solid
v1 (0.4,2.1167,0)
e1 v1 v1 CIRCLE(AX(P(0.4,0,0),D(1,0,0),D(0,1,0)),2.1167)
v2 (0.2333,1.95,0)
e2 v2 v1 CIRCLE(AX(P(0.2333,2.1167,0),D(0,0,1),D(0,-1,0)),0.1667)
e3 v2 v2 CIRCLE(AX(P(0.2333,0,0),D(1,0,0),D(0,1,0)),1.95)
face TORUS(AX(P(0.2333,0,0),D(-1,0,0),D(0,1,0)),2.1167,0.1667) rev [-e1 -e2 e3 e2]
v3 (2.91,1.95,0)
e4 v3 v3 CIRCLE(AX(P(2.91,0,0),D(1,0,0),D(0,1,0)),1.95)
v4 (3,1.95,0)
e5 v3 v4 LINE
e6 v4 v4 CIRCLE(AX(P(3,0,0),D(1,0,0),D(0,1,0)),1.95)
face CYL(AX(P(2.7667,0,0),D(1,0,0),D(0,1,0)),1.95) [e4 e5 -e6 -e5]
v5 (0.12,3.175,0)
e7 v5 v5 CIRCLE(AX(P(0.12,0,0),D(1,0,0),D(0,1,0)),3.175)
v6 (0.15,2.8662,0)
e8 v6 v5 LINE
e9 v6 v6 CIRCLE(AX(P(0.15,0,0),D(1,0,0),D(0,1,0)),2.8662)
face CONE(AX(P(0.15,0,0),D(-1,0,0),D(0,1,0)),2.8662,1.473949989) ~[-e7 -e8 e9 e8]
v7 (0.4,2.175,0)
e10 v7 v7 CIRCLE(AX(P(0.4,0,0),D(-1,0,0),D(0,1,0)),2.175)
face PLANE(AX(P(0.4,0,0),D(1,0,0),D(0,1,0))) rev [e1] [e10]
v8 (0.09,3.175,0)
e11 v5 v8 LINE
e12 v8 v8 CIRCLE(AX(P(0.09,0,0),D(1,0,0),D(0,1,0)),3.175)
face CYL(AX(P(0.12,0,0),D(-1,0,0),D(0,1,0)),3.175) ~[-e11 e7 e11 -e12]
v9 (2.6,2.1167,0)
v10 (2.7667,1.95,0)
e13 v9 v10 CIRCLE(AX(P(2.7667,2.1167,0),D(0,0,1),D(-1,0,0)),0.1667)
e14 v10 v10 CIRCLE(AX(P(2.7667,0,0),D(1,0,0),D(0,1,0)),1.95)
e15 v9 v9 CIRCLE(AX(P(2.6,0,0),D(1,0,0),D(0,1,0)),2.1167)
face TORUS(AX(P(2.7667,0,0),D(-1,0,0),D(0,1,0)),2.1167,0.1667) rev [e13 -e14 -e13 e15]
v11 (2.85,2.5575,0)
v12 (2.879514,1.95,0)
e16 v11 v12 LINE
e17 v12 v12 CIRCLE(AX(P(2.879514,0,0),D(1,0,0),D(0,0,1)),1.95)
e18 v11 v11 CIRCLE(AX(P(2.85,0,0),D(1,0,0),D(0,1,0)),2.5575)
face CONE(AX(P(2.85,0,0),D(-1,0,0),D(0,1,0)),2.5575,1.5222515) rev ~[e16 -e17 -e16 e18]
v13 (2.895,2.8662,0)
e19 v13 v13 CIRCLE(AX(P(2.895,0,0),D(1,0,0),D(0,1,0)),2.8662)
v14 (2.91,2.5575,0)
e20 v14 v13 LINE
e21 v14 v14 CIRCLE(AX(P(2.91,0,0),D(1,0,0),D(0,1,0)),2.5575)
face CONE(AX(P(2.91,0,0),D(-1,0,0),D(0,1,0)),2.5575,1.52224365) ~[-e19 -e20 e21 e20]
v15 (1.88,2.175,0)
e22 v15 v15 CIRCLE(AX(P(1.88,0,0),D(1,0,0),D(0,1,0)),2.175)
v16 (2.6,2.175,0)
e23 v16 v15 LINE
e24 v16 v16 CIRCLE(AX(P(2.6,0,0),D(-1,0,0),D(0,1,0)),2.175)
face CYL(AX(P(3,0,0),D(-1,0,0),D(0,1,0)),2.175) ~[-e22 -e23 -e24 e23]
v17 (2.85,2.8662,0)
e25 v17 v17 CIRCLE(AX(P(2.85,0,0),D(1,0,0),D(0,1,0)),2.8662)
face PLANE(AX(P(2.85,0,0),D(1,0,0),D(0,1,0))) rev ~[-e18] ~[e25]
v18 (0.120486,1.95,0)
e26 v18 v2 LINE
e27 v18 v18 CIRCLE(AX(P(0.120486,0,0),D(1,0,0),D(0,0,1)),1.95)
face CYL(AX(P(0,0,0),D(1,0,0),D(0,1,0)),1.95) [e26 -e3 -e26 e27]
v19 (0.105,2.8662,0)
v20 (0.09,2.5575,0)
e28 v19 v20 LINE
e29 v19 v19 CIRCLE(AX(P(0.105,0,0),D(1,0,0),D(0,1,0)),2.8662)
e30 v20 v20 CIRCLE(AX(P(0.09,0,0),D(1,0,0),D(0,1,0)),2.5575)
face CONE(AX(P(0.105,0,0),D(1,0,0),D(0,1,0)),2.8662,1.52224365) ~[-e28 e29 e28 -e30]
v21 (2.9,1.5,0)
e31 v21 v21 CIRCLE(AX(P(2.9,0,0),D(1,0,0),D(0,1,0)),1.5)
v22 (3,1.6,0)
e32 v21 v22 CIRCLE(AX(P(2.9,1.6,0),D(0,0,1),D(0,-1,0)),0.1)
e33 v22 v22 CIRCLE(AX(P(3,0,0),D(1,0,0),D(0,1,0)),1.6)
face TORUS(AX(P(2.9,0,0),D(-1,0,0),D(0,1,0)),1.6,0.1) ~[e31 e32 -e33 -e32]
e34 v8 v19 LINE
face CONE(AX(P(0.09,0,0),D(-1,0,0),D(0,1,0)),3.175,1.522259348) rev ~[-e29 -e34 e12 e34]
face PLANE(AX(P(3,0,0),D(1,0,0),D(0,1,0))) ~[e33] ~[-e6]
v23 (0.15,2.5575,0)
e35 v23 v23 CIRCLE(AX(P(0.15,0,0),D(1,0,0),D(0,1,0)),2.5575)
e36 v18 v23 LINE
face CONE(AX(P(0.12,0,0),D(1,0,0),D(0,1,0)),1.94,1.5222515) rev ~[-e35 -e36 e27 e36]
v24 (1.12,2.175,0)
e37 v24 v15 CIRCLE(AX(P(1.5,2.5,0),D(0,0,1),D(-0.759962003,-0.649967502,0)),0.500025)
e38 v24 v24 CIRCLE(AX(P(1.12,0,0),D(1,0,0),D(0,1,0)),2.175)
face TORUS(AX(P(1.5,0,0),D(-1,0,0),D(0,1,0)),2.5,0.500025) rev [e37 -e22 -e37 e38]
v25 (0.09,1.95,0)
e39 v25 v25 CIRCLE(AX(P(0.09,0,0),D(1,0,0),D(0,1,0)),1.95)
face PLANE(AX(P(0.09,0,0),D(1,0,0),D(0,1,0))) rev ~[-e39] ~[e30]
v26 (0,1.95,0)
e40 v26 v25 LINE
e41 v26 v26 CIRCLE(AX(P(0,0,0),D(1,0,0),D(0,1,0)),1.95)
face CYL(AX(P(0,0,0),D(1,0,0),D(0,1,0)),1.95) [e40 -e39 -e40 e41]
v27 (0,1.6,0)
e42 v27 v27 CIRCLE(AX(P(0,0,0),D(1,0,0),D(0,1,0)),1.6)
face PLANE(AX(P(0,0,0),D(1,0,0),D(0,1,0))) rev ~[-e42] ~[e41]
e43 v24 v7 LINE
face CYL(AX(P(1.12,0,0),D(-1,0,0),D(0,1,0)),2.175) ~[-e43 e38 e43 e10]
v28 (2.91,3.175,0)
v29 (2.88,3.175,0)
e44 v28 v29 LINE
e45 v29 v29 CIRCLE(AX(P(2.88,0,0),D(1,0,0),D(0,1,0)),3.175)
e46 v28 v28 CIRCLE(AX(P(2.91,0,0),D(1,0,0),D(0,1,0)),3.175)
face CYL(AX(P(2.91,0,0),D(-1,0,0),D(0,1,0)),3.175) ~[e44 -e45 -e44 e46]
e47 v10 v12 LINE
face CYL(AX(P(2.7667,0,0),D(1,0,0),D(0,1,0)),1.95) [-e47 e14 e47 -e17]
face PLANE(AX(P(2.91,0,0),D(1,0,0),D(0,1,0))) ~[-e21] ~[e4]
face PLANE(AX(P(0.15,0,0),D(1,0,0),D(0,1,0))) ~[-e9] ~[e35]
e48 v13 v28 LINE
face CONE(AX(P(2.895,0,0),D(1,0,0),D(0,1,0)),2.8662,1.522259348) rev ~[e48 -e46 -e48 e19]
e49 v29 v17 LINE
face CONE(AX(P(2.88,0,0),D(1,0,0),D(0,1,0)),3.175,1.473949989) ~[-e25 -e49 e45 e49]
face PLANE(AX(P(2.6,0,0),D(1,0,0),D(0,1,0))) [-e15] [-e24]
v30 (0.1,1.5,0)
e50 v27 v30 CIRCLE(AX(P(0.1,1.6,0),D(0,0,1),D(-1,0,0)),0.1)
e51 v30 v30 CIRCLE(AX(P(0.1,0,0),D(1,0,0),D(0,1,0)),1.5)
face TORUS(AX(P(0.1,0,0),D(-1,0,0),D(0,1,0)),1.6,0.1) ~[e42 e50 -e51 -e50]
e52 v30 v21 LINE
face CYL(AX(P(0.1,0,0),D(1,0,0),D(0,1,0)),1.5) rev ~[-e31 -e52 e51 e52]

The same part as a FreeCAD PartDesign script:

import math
import FreeCAD as App
import Part
import Sketcher

V = App.Vector
Q = App.Units.Quantity


def add_polygon(sketch, points):
    """Adds a closed chain of lines whose ends are joined by coincident constraints."""
    first, n = sketch.GeometryCount, len(points)
    for a, b in zip(points, points[1:] + points[:1]):
        sketch.addGeometry(Part.LineSegment(App.Vector(*a, 0), App.Vector(*b, 0)), False)
    for i in range(n):
        sketch.addConstraint(Sketcher.Constraint("Coincident", first + i, 2, first + (i + 1) % n, 1))

doc = App.newDocument("Part")
body = doc.addObject("PartDesign::Body", "Body")

# Sketch on XY plane
sketch1 = doc.addObject("Sketcher::SketchObject", "Sketch")
body.addObject(sketch1)
sketch1.AttachmentSupport = (doc.XY_Plane, [""])
sketch1.MapMode = "FlatFace"
sketch1.addGeometry([
    Part.LineSegment(V(0, 2.17, 0), V(0, 1.6, 0)),  # 0
    Part.ArcOfCircle(Part.Circle(V(0.1, 1.6, 0), V(0, 0, 1), 0.1), math.radians(180), math.radians(270)),  # 1
    Part.LineSegment(V(0.1, 1.5, 0), V(2.9, 1.5, 0)),  # 2
    Part.ArcOfCircle(Part.Circle(V(2.9, 1.6, 0), V(0, 0, 1), 0.1), math.radians(-90), math.radians(0)),  # 3
    Part.LineSegment(V(3, 1.6, 0), V(3, 2.17, 0)),  # 4
    Part.LineSegment(V(3, 2.17, 0), V(1.88, 2.17, 0)),  # 5
    Part.ArcOfCircle(Part.Circle(V(1.5, 2.5, 0), V(0, 0, 1), 0.5), math.radians(-139), math.radians(-41)),  # 6
    Part.LineSegment(V(1.12, 2.17, 0), V(0, 2.17, 0)),  # 7
], False)
sketch1.addConstraint([
    Sketcher.Constraint("Tangent", 0, 2, 1, 1),
    Sketcher.Constraint("Tangent", 1, 2, 2, 1),
    Sketcher.Constraint("Tangent", 2, 2, 3, 1),
    Sketcher.Constraint("Tangent", 3, 2, 4, 1),
    Sketcher.Constraint("Coincident", 4, 2, 5, 1),
    Sketcher.Constraint("Coincident", 5, 2, 6, 2),
    Sketcher.Constraint("Coincident", 6, 1, 7, 1),
    Sketcher.Constraint("Coincident", 7, 2, 0, 1),
    Sketcher.Constraint("Vertical", 0),
    Sketcher.Constraint("Horizontal", 2),
    Sketcher.Constraint("Vertical", 4),
    Sketcher.Constraint("Horizontal", 5),
    Sketcher.Constraint("Horizontal", 7),
    Sketcher.Constraint("Equal", 1, 3),
    Sketcher.Constraint("PointOnObject", 0, 2, -2),
    Sketcher.Constraint("Horizontal", 5, 2, 6, 1),
    Sketcher.Constraint("Equal", 5, 7),
    Sketcher.Constraint("Radius", 1, 0.1),
    Sketcher.Constraint("Radius", 6, 0.5),
    Sketcher.Constraint("DistanceX", 2, 1, 2, 2, 2.8),
    Sketcher.Constraint("DistanceY", 1, 2, 6, 3, 1.0),
    Sketcher.Constraint("DistanceX", 5, 2, 5, 1, 1.12),
    Sketcher.Constraint("DistanceY", -1, 1, 1, 3, 1.6),
])
revolution = doc.addObject("PartDesign::Revolution", "Revolution")
body.addObject(revolution)
revolution.Profile = sketch1
revolution.ReferenceAxis = (sketch1, ["H_Axis"])
revolution.Angle = 360

# Sketch on XY plane
sketch2 = doc.addObject("Sketcher::SketchObject", "Sketch001")
body.addObject(sketch2)
sketch2.AttachmentSupport = (doc.XY_Plane, [""])
sketch2.MapMode = "FlatFace"
sketch2.addGeometry([
    Part.LineSegment(V(3, 2.58, 0), V(0, 2.58, 0)),  # 0
    Part.LineSegment(V(0, 2.58, 0), V(0, 1.95, 0)),  # 1
    Part.LineSegment(V(0, 1.95, 0), V(0.23, 1.95, 0)),  # 2
    Part.ArcOfCircle(Part.Circle(V(0.23, 2.12, 0), V(0, 0, 1), 0.17), math.radians(-90), math.radians(0)),  # 3
    Part.LineSegment(V(0.4, 2.12, 0), V(0.4, 2.31, 0)),  # 4
    Part.LineSegment(V(0.4, 2.31, 0), V(2.6, 2.31, 0)),  # 5
    Part.LineSegment(V(2.6, 2.31, 0), V(2.6, 2.12, 0)),  # 6
    Part.ArcOfCircle(Part.Circle(V(2.77, 2.12, 0), V(0, 0, 1), 0.17), math.radians(180), math.radians(270)),  # 7
    Part.LineSegment(V(2.77, 1.95, 0), V(3, 1.95, 0)),  # 8
    Part.LineSegment(V(3, 1.95, 0), V(3, 2.58, 0)),  # 9
], False)
sketch2.addConstraint([
    Sketcher.Constraint("Coincident", 0, 2, 1, 1),
    Sketcher.Constraint("Coincident", 1, 2, 2, 1),
    Sketcher.Constraint("Tangent", 2, 2, 3, 1),
    Sketcher.Constraint("Tangent", 3, 2, 4, 1),
    Sketcher.Constraint("Coincident", 4, 2, 5, 1),
    Sketcher.Constraint("Coincident", 5, 2, 6, 1),
    Sketcher.Constraint("Tangent", 6, 2, 7, 1),
    Sketcher.Constraint("Tangent", 7, 2, 8, 1),
    Sketcher.Constraint("Coincident", 8, 2, 9, 1),
    Sketcher.Constraint("Coincident", 9, 2, 0, 1),
    Sketcher.Constraint("Horizontal", 0),
    Sketcher.Constraint("Vertical", 1),
    Sketcher.Constraint("Horizontal", 2),
    Sketcher.Constraint("Vertical", 4),
    Sketcher.Constraint("Horizontal", 5),
    Sketcher.Constraint("Vertical", 6),
    Sketcher.Constraint("Horizontal", 8),
    Sketcher.Constraint("Vertical", 9),
    Sketcher.Constraint("Equal", 3, 7),
    Sketcher.Constraint("PointOnObject", 0, 2, -2),
    Sketcher.Constraint("Horizontal", 3, 3, 7, 3),
    Sketcher.Constraint("Equal", 2, 8),
    Sketcher.Constraint("DistanceX", 0, 2, 0, 1, 3.0),
    Sketcher.Constraint("DistanceX", 5, 1, 5, 2, 2.2),
    Sketcher.Constraint("Radius", 3, 0.1667),
    Sketcher.Constraint("DistanceY", 1, 2, 1, 1, 0.625),
    Sketcher.Constraint("DistanceY", -1, 1, 1, 2, 1.95),
    Sketcher.Constraint("DistanceY", 4, 1, 4, 2, 0.1916),
])
groove = doc.addObject("PartDesign::Groove", "Groove")
body.addObject(groove)
groove.Profile = sketch2
groove.ReferenceAxis = (sketch2, ["H_Axis"])
groove.Angle = 360

# Sketch on XY plane
sketch3 = doc.addObject("Sketcher::SketchObject", "Sketch002")
body.addObject(sketch3)
sketch3.AttachmentSupport = (doc.XY_Plane, [""])
sketch3.MapMode = "FlatFace"
add_polygon(sketch3, [(0.12, 3.175), (0.09, 3.175), (0.105, 2.866), (0.09, 2.558), (0.09, 1.94), (0.12, 1.94), (0.15, 2.558), (0.15, 2.866)])  # lines 0-7
sketch3.addConstraint([
    Sketcher.Constraint("Horizontal", 0),
    Sketcher.Constraint("Vertical", 3),
    Sketcher.Constraint("Horizontal", 4),
    Sketcher.Constraint("Vertical", 6),
    Sketcher.Constraint("Parallel", 2, 5),
    Sketcher.Constraint("Horizontal", 2, 2, 5, 2),
    Sketcher.Constraint("Horizontal", 1, 2, 6, 2),
    Sketcher.Constraint("Vertical", 0, 2, 2, 2),
    Sketcher.Constraint("Vertical", 4, 2, 7, 2),
    Sketcher.Constraint("Equal", 1, 2),
    Sketcher.Constraint("DistanceX", 0, 2, 0, 1, 0.03),
    Sketcher.Constraint("Angle", 1, Q("-87.219 deg")),
    Sketcher.Constraint("Angle", 7, Q("95.549 deg")),
    Sketcher.Constraint("DistanceX", -1, 1, 0, 2, 0.09),
    Sketcher.Constraint("DistanceY", -1, 1, 3, 2, 1.94),
    Sketcher.Constraint("DistanceX", -1, 1, 5, 2, 0.15),
])
revolution2 = doc.addObject("PartDesign::Revolution", "Revolution001")
body.addObject(revolution2)
revolution2.Profile = sketch3
revolution2.ReferenceAxis = (sketch3, ["H_Axis"])
revolution2.Angle = 360

# Sketch on XY plane
sketch4 = doc.addObject("Sketcher::SketchObject", "Sketch003")
body.addObject(sketch4)
sketch4.AttachmentSupport = (doc.XY_Plane, [""])
sketch4.MapMode = "FlatFace"
add_polygon(sketch4, [(2.88, 3.175), (2.85, 2.866), (2.85, 2.558), (2.88, 1.94), (2.91, 1.94), (2.91, 2.558), (2.895, 2.866), (2.91, 3.175)])  # lines 0-7
sketch4.addConstraint([
    Sketcher.Constraint("Vertical", 1),
    Sketcher.Constraint("Horizontal", 3),
    Sketcher.Constraint("Vertical", 4),
    Sketcher.Constraint("Horizontal", 7),
    Sketcher.Constraint("Parallel", 2, 5),
    Sketcher.Constraint("Horizontal", 1, 2, 4, 2),
    Sketcher.Constraint("Horizontal", 0, 2, 5, 2),
    Sketcher.Constraint("Vertical", 4, 2, 6, 2),
    Sketcher.Constraint("Vertical", 2, 2, 7, 2),
    Sketcher.Constraint("Equal", 5, 6),
    Sketcher.Constraint("DistanceX", 3, 1, 3, 2, 0.03),
    Sketcher.Constraint("Angle", 0, Q("-95.549 deg")),
    Sketcher.Constraint("Angle", 6, Q("87.219 deg")),
    Sketcher.Constraint("DistanceX", -1, 1, 0, 2, 2.85),
    Sketcher.Constraint("DistanceX", -1, 1, 2, 2, 2.88),
    Sketcher.Constraint("DistanceY", -1, 1, 2, 2, 1.94),
])
revolution3 = doc.addObject("PartDesign::Revolution", "Revolution002")
body.addObject(revolution3)
revolution3.Profile = sketch4
revolution3.ReferenceAxis = (sketch4, ["H_Axis"])
revolution3.Angle = 360

doc.recompute()
